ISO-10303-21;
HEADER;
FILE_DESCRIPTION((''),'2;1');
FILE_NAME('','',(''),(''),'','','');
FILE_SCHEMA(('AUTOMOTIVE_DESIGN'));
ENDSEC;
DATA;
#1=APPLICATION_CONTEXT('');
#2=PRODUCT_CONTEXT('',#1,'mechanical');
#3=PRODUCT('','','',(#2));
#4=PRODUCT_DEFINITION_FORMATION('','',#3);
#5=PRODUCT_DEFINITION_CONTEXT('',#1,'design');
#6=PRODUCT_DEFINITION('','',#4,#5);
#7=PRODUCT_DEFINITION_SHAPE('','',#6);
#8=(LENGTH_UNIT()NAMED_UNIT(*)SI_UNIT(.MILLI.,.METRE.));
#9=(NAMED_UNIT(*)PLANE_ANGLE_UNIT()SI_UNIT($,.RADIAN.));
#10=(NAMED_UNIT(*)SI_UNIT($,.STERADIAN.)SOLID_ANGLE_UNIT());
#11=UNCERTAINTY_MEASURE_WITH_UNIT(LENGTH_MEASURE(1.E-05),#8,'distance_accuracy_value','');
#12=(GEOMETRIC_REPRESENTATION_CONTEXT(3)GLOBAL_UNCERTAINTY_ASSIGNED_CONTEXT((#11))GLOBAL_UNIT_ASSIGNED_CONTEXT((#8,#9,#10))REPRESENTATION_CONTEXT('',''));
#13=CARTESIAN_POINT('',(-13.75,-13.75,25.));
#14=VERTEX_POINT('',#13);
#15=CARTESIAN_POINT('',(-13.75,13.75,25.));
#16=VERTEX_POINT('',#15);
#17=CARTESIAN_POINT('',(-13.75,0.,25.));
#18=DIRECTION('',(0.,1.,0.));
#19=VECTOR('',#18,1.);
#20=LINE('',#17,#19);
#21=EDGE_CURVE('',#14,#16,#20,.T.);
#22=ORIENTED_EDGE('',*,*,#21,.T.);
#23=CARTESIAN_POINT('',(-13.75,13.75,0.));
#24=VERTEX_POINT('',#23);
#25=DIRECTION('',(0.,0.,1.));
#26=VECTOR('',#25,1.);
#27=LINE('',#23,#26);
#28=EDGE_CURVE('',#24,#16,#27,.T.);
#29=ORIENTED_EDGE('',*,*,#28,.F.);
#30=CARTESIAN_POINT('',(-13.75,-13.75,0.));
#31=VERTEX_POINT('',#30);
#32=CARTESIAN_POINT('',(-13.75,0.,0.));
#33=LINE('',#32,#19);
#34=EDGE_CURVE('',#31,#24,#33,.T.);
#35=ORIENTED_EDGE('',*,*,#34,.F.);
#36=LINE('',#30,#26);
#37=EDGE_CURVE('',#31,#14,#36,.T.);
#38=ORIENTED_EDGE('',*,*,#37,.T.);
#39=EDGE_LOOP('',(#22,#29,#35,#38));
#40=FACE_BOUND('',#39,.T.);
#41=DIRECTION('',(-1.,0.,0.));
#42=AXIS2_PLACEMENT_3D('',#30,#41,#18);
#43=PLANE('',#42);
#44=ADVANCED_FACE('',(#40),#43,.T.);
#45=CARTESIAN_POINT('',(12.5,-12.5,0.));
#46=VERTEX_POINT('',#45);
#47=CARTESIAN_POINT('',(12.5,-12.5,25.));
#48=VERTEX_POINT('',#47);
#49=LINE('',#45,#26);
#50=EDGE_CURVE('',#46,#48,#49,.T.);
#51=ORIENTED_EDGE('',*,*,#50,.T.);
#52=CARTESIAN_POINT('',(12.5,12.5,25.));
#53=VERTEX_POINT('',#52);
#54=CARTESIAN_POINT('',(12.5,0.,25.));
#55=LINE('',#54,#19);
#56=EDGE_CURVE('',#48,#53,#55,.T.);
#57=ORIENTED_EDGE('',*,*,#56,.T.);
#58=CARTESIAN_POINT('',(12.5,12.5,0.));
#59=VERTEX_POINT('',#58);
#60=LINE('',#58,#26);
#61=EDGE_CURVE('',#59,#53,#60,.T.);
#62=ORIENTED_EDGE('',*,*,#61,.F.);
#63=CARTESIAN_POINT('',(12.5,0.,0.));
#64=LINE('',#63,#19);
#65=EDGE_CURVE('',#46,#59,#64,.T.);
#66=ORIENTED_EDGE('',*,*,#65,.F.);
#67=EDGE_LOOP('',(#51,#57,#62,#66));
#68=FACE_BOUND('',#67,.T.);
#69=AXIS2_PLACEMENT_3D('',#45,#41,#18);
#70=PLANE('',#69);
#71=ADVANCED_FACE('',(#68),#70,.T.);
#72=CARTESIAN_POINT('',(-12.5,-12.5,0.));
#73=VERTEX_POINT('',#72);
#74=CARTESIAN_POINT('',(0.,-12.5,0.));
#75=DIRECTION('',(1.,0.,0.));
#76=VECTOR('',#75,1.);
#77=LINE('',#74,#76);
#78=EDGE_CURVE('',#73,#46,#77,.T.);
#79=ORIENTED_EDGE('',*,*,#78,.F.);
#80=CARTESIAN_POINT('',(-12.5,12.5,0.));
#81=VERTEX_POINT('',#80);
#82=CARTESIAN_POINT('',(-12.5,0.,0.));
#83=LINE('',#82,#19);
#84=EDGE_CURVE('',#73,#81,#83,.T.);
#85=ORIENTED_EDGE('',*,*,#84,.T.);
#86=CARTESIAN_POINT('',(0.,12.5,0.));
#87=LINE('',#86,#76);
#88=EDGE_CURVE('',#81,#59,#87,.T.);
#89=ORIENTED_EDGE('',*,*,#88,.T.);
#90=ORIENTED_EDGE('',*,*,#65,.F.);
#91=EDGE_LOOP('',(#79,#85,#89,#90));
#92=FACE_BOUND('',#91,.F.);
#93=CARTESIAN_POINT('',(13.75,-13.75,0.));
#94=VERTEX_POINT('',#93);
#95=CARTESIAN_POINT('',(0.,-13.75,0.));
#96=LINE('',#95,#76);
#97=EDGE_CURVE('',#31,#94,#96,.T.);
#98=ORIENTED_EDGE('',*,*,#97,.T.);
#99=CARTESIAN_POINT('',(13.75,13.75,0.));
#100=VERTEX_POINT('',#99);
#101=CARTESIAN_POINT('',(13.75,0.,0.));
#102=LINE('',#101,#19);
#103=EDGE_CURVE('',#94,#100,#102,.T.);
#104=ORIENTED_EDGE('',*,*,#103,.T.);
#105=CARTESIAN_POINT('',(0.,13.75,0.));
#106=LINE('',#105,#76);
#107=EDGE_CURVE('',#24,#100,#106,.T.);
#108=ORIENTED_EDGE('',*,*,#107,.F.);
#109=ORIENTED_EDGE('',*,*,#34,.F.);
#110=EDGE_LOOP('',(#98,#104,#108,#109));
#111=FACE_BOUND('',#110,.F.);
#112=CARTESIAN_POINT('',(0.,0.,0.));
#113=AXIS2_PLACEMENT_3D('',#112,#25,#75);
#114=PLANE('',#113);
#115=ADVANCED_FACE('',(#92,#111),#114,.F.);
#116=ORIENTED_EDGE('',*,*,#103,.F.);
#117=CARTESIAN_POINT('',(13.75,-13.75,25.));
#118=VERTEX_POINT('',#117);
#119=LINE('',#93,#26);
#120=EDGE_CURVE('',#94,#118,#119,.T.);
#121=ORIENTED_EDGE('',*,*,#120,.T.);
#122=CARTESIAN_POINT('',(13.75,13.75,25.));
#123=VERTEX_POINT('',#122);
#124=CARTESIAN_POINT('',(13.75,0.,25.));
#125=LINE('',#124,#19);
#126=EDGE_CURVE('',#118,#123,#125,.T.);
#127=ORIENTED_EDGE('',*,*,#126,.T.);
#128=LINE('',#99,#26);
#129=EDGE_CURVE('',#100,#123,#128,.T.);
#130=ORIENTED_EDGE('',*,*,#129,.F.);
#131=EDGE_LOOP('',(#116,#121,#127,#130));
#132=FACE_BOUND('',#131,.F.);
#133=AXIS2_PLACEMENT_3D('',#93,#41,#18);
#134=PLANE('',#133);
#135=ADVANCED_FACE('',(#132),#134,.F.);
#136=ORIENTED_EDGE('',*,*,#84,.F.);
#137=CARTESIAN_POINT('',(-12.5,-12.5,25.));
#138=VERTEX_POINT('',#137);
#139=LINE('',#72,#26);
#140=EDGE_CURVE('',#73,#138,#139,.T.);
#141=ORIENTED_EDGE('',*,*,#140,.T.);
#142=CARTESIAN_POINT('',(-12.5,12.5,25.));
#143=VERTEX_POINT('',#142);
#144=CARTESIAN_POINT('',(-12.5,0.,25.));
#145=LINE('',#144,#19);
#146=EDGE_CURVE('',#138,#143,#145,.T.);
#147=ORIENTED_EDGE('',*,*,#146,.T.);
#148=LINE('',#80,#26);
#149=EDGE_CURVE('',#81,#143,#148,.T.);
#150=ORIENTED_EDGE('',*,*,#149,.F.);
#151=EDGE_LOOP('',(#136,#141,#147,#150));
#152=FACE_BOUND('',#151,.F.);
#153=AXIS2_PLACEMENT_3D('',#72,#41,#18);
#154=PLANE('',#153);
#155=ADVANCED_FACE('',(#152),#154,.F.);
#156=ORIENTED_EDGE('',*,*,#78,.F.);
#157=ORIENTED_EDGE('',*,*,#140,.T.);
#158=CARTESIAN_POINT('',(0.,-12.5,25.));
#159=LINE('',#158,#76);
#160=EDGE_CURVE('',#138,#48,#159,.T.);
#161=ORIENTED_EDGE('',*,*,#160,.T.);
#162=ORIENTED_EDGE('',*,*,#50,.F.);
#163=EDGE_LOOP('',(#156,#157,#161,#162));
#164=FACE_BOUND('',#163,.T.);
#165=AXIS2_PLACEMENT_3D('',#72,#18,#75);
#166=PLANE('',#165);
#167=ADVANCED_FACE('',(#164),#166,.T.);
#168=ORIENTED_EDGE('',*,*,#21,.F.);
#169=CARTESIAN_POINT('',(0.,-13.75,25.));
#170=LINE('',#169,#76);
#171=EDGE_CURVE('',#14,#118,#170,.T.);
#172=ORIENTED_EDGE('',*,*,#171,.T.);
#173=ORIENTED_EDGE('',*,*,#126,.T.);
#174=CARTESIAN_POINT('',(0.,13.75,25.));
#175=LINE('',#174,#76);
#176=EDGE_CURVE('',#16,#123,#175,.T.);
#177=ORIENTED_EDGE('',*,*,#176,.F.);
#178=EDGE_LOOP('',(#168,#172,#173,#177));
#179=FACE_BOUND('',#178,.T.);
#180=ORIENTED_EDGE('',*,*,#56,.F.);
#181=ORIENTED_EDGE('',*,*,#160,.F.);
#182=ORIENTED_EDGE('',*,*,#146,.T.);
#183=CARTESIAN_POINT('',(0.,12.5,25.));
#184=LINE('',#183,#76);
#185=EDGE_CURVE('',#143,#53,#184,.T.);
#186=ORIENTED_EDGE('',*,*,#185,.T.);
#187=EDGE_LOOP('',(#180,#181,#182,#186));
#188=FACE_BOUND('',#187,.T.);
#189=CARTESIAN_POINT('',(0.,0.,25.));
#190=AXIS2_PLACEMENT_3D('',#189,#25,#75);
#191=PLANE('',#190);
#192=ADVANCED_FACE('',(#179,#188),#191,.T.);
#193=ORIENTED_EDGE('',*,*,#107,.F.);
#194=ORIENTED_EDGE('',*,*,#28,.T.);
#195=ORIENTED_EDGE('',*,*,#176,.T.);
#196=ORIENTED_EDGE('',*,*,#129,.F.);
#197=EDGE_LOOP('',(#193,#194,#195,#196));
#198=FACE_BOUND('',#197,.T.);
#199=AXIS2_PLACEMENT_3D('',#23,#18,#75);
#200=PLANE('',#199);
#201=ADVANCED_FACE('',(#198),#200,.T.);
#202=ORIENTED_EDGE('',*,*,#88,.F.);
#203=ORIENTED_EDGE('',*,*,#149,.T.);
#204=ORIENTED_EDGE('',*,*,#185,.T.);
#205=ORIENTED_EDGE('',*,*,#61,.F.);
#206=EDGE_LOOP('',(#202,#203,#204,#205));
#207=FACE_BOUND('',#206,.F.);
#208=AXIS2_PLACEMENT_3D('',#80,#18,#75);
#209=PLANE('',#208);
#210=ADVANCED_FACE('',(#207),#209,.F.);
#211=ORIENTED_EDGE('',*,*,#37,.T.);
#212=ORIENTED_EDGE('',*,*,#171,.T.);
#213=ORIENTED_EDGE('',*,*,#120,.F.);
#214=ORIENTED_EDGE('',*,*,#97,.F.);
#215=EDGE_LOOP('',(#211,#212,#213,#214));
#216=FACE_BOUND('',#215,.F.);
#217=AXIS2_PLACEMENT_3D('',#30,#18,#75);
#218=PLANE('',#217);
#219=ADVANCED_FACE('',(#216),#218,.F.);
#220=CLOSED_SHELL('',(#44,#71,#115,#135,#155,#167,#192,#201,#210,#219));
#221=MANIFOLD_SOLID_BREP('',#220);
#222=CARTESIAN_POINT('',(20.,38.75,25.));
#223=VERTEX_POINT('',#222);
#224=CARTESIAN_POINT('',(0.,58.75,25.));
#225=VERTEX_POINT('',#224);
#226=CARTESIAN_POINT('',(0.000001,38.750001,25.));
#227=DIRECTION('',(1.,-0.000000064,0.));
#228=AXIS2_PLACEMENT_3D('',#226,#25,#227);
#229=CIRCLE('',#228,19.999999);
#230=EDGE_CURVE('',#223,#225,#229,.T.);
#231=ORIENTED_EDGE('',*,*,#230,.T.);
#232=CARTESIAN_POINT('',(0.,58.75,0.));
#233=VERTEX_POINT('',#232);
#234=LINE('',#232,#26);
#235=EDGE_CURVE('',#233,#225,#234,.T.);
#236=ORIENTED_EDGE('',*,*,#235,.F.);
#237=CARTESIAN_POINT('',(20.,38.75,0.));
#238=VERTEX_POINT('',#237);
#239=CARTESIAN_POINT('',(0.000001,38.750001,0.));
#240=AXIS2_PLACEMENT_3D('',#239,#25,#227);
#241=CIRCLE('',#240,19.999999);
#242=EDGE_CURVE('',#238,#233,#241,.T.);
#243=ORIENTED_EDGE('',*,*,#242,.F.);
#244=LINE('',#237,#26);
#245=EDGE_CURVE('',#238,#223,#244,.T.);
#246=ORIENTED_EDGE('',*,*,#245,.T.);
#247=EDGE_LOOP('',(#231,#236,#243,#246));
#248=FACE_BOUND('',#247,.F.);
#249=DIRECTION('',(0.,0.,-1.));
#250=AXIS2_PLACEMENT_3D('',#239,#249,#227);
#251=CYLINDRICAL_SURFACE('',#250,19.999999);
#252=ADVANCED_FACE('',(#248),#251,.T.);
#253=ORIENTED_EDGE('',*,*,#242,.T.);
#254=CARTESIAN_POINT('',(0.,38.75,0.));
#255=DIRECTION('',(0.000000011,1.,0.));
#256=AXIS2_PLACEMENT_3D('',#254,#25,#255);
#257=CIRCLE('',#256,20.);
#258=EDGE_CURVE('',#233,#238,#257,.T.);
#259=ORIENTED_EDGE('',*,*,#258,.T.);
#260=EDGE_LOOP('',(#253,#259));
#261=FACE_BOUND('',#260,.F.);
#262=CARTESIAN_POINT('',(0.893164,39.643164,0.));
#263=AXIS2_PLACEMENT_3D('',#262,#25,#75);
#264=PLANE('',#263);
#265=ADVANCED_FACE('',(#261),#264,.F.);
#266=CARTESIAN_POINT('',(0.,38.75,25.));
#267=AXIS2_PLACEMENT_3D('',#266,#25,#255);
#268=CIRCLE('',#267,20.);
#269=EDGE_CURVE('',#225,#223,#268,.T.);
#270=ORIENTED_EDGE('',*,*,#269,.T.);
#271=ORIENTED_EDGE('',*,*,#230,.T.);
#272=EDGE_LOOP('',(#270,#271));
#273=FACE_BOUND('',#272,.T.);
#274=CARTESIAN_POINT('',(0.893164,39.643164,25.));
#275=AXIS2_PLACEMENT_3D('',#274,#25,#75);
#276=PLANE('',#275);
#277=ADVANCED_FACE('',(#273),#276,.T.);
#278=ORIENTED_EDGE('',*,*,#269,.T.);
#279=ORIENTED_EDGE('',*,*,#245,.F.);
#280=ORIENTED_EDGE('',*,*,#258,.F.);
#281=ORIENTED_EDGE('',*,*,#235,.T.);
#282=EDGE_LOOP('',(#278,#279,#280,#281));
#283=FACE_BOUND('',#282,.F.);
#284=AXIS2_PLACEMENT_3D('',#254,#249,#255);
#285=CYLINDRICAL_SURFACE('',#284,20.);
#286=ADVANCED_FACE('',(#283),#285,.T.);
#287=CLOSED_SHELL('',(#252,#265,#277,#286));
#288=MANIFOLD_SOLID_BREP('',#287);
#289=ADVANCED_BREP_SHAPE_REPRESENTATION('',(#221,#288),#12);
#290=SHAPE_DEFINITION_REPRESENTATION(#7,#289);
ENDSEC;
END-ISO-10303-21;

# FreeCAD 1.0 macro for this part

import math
import FreeCAD as App
import Part
import Sketcher
Q = App.Units.Quantity


def add_polygon(sketch, points):
    """Adds a closed chain of lines whose ends are joined by coincident constraints."""
    first, n = sketch.GeometryCount, len(points)
    for a, b in zip(points, points[1:] + points[:1]):
        sketch.addGeometry(Part.LineSegment(App.Vector(*a, 0), App.Vector(*b, 0)), False)
    for i in range(n):
        sketch.addConstraint(Sketcher.Constraint("Coincident", first + i, 2, first + (i + 1) % n, 1))

doc = App.newDocument("Part")
body = doc.addObject("PartDesign::Body", "Body")
body.AllowCompound = True

# Sketch on XY plane
sketch1 = body.newObject("Sketcher::SketchObject", "Sketch")
sketch1.AttachmentSupport = (doc.getObject("XY_Plane"), [""])
sketch1.MapMode = "FlatFace"
sketch1.addGeometry(Part.ArcOfCircle(Part.Circle(App.Vector(0, 38.75, 0), App.Vector(0, 0, 1), 20), math.radians(89.999999), math.radians(360.000001)), False)  # 0
sketch1.addGeometry(Part.ArcOfCircle(Part.Circle(App.Vector(0.000001, 38.750001, 0), App.Vector(0, 0, 1), 19.999999), math.radians(-0.000004), math.radians(90.000004)), False)  # 1
add_polygon(sketch1, [(-13.75, 13.75), (-13.75, -13.75), (13.75, -13.75), (13.75, 13.75)])  # lines 2-5
add_polygon(sketch1, [(12.5, -12.5), (-12.5, -12.5), (-12.5, 12.5), (12.5, 12.5)])  # lines 6-9
sketch1.addConstraint([
    Sketcher.Constraint("Tangent", 0, 1, 1, 2),
    Sketcher.Constraint("Coincident", 1, 1, 0, 2),
    Sketcher.Constraint("Vertical", 2),
    Sketcher.Constraint("Horizontal", 3),
    Sketcher.Constraint("Vertical", 4),
    Sketcher.Constraint("Horizontal", 5),
    Sketcher.Constraint("Horizontal", 6),
    Sketcher.Constraint("Vertical", 7),
    Sketcher.Constraint("Horizontal", 8),
    Sketcher.Constraint("Vertical", 9),
    Sketcher.Constraint("Symmetric", 2, 2, 4, 2, -1, 1),
    Sketcher.Constraint("Symmetric", 6, 2, 8, 2, -1, 1),
    Sketcher.Constraint("PointOnObject", 0, 3, -2),
    Sketcher.Constraint("PointOnObject", 0, 1, -2),
    Sketcher.Constraint("Horizontal", 0, 3, 1, 1),
    Sketcher.Constraint("Equal", 5, 2),
    Sketcher.Constraint("Equal", 8, 7),
    Sketcher.Constraint("Radius", 0, Q("20 mm")),
    Sketcher.Constraint("DistanceX", 6, 2, 6, 1, Q("25 mm")),
    Sketcher.Constraint("DistanceX", 3, 1, 3, 2, Q("27.5 mm")),
    Sketcher.Constraint("DistanceY", 4, 2, 1, 1, Q("25 mm")),
])
pad1 = body.newObject("PartDesign::Pad", "Pad")
pad1.Profile = sketch1
pad1.Length = 25

doc.recompute()
